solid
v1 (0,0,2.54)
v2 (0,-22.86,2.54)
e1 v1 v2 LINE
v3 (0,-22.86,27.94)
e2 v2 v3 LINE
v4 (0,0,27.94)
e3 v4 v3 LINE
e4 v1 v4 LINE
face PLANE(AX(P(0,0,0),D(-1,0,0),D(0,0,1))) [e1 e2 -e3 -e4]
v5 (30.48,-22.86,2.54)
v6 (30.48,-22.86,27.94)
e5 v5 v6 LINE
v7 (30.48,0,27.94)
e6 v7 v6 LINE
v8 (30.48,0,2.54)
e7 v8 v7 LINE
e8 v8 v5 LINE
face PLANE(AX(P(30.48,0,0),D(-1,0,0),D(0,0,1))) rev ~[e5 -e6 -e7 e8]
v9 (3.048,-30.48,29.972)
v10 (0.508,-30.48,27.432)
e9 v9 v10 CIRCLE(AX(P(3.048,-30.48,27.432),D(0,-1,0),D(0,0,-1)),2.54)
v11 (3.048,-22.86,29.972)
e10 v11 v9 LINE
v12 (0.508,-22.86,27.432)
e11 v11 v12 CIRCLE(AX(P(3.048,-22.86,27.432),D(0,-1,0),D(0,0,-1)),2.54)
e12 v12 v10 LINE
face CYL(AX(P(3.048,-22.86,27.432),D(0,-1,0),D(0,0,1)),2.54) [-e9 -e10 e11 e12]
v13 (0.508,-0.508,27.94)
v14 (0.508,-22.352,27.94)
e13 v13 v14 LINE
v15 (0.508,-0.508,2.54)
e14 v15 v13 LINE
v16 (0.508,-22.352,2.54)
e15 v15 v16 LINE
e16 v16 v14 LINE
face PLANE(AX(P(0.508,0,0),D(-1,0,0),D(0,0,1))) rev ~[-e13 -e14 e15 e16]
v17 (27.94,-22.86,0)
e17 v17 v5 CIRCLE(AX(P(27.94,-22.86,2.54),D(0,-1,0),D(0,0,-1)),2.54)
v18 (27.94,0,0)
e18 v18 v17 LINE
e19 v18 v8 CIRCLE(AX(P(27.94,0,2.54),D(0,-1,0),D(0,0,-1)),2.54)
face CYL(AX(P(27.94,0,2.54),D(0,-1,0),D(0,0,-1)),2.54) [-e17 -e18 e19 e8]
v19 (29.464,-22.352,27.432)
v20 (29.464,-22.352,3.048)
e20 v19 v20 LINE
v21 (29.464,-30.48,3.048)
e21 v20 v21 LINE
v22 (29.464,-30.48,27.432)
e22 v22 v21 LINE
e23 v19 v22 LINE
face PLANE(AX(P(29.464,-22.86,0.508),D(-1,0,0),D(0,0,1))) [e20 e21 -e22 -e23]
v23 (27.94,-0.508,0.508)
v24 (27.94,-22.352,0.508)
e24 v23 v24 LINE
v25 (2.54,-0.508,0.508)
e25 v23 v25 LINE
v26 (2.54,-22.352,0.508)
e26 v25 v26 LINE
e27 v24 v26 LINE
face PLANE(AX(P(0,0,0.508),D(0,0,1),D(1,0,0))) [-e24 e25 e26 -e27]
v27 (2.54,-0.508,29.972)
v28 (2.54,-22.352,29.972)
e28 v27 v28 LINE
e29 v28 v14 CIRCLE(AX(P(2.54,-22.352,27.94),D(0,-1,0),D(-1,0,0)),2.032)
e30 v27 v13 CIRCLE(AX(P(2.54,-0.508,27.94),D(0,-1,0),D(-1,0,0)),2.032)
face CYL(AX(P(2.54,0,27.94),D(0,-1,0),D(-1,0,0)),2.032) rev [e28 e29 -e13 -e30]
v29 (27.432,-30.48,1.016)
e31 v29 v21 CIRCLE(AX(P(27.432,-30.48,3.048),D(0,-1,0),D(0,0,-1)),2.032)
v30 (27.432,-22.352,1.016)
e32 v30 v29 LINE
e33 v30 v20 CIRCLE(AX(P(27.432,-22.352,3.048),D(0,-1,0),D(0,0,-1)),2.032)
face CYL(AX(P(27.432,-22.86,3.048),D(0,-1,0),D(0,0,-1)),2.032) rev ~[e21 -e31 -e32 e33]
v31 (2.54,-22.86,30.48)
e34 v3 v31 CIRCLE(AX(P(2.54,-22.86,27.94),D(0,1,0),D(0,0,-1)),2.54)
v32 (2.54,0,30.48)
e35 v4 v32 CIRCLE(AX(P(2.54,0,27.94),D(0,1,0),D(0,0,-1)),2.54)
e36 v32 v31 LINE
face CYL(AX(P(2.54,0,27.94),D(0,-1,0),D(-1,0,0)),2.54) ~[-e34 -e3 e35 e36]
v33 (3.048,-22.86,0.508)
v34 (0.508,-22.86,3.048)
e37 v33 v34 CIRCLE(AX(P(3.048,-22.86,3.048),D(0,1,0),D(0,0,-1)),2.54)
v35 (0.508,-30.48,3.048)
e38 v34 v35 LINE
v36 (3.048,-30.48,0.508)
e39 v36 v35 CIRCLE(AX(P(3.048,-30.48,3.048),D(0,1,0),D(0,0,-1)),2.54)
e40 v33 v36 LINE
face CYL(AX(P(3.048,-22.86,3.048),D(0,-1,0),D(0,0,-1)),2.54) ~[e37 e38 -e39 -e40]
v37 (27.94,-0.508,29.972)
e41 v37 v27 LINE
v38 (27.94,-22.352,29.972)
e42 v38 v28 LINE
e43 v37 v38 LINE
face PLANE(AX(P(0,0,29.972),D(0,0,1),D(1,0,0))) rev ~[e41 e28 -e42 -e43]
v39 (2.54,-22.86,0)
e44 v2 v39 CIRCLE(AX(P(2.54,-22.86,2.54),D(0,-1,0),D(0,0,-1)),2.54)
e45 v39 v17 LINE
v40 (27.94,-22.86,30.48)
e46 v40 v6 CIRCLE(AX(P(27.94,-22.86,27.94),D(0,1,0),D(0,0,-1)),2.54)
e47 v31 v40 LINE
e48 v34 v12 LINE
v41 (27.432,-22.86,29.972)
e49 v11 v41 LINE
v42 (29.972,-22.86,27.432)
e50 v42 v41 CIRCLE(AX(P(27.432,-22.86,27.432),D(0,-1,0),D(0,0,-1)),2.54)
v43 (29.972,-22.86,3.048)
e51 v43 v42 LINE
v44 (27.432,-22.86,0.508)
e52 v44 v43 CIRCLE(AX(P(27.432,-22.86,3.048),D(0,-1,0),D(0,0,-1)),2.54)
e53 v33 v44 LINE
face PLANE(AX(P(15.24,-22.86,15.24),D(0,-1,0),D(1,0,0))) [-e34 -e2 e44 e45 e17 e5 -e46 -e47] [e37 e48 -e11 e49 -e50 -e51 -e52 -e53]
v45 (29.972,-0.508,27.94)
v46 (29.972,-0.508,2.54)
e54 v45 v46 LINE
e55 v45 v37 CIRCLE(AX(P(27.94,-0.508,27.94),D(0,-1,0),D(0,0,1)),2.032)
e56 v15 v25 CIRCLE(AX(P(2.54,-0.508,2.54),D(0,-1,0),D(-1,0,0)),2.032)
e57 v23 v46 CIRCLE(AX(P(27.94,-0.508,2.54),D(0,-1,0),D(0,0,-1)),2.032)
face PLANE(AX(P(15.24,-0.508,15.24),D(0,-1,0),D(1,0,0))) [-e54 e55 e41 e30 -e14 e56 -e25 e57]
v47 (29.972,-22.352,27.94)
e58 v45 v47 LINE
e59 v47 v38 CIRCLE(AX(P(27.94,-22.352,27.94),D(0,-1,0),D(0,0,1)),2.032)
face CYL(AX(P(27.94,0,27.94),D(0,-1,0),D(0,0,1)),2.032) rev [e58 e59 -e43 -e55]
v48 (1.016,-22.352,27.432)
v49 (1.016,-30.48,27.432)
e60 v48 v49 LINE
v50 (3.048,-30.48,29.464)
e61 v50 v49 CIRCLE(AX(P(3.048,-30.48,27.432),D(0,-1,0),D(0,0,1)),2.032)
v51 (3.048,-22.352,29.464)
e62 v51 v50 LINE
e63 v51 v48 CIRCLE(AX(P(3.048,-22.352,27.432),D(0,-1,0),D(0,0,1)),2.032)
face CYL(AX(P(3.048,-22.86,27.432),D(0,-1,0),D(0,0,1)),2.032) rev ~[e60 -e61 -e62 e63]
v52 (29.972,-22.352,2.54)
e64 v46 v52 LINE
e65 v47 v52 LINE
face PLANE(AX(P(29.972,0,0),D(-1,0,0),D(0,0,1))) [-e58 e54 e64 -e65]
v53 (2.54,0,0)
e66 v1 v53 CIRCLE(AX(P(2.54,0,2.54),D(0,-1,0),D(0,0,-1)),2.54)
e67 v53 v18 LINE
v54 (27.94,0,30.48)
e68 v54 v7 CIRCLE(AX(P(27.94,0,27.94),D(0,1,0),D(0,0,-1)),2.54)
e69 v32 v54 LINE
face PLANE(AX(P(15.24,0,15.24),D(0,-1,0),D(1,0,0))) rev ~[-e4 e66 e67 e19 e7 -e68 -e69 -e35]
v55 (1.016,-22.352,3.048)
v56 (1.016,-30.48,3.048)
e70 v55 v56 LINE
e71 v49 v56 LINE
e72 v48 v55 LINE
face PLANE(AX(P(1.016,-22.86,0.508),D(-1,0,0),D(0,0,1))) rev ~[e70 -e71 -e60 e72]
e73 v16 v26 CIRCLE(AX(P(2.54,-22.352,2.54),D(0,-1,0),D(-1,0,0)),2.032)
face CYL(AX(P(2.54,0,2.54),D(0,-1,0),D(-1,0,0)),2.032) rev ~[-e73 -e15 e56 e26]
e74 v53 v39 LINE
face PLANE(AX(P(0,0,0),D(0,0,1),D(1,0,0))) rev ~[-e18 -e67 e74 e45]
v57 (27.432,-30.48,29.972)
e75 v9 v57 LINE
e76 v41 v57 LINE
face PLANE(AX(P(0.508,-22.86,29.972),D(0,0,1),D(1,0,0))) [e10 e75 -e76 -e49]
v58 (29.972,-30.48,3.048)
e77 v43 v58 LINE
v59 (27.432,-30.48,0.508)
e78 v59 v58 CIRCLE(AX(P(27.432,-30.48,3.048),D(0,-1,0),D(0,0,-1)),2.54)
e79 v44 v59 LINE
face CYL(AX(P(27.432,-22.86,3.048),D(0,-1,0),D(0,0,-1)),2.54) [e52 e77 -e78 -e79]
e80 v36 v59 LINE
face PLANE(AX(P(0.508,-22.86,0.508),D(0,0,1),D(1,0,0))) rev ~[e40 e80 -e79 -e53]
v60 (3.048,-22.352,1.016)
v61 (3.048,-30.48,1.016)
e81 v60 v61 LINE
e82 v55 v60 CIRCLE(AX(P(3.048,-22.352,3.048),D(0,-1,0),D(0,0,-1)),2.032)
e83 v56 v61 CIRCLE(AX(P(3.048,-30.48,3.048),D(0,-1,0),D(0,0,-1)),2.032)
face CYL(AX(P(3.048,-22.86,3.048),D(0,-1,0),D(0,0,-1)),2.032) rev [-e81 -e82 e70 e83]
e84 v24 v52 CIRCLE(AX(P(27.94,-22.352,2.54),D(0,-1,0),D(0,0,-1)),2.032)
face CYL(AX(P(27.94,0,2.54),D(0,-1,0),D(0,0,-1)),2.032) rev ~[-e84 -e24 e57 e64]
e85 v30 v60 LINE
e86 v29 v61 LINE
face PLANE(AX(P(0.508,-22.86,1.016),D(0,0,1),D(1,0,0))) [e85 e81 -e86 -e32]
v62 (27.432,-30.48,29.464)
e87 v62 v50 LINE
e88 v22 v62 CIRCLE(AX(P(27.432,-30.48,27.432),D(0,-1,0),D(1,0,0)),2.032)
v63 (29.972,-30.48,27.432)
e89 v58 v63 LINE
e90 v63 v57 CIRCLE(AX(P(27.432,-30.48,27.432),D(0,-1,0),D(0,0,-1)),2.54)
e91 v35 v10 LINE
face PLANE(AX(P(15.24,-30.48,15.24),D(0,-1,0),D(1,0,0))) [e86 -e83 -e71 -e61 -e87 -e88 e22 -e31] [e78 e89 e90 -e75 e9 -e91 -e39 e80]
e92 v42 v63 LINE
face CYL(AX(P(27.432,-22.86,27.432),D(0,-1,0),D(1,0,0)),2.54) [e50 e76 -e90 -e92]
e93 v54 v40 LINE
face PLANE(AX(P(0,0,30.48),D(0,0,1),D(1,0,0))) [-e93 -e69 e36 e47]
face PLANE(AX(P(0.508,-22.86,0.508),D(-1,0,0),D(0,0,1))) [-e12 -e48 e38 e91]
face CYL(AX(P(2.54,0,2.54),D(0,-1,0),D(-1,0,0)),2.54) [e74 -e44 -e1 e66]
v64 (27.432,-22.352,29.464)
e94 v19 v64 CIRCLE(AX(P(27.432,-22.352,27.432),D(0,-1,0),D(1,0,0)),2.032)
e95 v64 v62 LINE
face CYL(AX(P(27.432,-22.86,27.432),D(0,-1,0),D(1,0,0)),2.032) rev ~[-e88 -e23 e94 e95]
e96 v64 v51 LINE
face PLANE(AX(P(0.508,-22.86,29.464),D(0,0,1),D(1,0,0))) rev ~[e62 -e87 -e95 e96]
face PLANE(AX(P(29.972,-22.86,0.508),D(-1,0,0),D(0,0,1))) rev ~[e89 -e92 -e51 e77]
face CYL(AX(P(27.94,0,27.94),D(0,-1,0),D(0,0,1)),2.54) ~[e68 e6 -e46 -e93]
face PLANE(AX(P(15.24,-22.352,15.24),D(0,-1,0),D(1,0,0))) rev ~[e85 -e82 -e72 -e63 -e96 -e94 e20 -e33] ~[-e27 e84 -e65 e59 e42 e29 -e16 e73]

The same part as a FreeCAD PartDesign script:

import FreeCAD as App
import Part
import Sketcher
Q = App.Units.Quantity


def edges_at(feature, points):
    """Names of the edges that pass closest to the given points."""
    edges = feature.Shape.Edges
    near = lambda p: min(range(len(edges)), key=lambda i: edges[i].distToShape(Part.Vertex(*p))[0])
    return sorted({f"Edge{near(p) + 1}" for p in points})


def faces_at(feature, points):
    """Names of the faces that lie closest to the given points."""
    faces = feature.Shape.Faces
    near = lambda p: min(range(len(faces)), key=lambda i: faces[i].distToShape(Part.Vertex(*p))[0])
    return sorted({f"Face{near(p) + 1}" for p in points})


def add_polygon(sketch, points):
    """Adds a closed chain of lines whose ends are joined by coincident constraints."""
    first, n = sketch.GeometryCount, len(points)
    for a, b in zip(points, points[1:] + points[:1]):
        sketch.addGeometry(Part.LineSegment(App.Vector(*a, 0), App.Vector(*b, 0)), False)
    for i in range(n):
        sketch.addConstraint(Sketcher.Constraint("Coincident", first + i, 2, first + (i + 1) % n, 1))

doc = App.newDocument("Part")
body = doc.addObject("PartDesign::Body", "Body")

# Sketch on XZ plane
sketch1 = body.newObject("Sketcher::SketchObject", "Sketch")
sketch1.AttachmentSupport = (doc.getObject("XZ_Plane"), [""])
sketch1.MapMode = "FlatFace"
add_polygon(sketch1, [(0, 30.48), (0, 0), (30.48, 0), (30.48, 30.48)])  # lines 0-3
sketch1.addConstraint([
    Sketcher.Constraint("Vertical", 0),
    Sketcher.Constraint("Horizontal", 1),
    Sketcher.Constraint("Vertical", 2),
    Sketcher.Constraint("Horizontal", 3),
    Sketcher.Constraint("Coincident", 0, 2, -1, 1),
    Sketcher.Constraint("Equal", 3, 0),
    Sketcher.Constraint("DistanceX", 1, 1, 1, 2, Q("1.2 in")),
])
pad1 = body.newObject("PartDesign::Pad", "Pad")
pad1.Profile = sketch1
pad1.Length = Q("0.9 in")

# Sketch on XZ plane
sketch2 = body.newObject("Sketcher::SketchObject", "Sketch001")
sketch2.AttachmentSupport = (doc.getObject("XZ_Plane"), [""])
sketch2.MapMode = "FlatFace"
sketch2.AttachmentOffset = App.Placement(App.Vector(0, 0, 0.9 * 25.4), App.Rotation())
add_polygon(sketch2, [(0.508, 29.972), (0.508, 0.508), (29.972, 0.508), (29.972, 29.972)])  # lines 0-3
sketch2.addConstraint([
    Sketcher.Constraint("Vertical", 0),
    Sketcher.Constraint("Horizontal", 1),
    Sketcher.Constraint("Vertical", 2),
    Sketcher.Constraint("Horizontal", 3),
    Sketcher.Constraint("Equal", 3, 0),
    Sketcher.Constraint("DistanceX", 1, 1, 1, 2, Q("1.16 in")),
    Sketcher.Constraint("DistanceX", -1, 1, 0, 2, Q("0.02 in")),
    Sketcher.Constraint("DistanceY", -1, 1, 0, 2, Q("0.02 in")),
])
pad2 = body.newObject("PartDesign::Pad", "Pad001")
pad2.Profile = sketch2
pad2.Length = Q("0.3 in")
doc.recompute()

fillet = body.newObject("PartDesign::Fillet", "Fillet")
fillet.Base = (pad2, edges_at(pad2, [
    (30.48, -11.43, 30.48),
    (29.972, -26.67, 29.972),
    (0.508, -26.67, 29.972),
    (0, -11.43, 30.48),
    (0, -11.43, 0),
    (0.508, -26.67, 0.508),
    (30.48, -11.43, 0),
    (29.972, -26.67, 0.508),
]))
fillet.Radius = Q("0.1 in")
doc.recompute()

thickness = body.newObject("PartDesign::Thickness", "Thickness")
thickness.Base = (fillet, faces_at(fillet, [(15.24, -30.48, 15.24)]))
thickness.Value = Q("0.02 in")
thickness.Reversed = True
thickness.Join = "Intersection"

doc.recompute()
